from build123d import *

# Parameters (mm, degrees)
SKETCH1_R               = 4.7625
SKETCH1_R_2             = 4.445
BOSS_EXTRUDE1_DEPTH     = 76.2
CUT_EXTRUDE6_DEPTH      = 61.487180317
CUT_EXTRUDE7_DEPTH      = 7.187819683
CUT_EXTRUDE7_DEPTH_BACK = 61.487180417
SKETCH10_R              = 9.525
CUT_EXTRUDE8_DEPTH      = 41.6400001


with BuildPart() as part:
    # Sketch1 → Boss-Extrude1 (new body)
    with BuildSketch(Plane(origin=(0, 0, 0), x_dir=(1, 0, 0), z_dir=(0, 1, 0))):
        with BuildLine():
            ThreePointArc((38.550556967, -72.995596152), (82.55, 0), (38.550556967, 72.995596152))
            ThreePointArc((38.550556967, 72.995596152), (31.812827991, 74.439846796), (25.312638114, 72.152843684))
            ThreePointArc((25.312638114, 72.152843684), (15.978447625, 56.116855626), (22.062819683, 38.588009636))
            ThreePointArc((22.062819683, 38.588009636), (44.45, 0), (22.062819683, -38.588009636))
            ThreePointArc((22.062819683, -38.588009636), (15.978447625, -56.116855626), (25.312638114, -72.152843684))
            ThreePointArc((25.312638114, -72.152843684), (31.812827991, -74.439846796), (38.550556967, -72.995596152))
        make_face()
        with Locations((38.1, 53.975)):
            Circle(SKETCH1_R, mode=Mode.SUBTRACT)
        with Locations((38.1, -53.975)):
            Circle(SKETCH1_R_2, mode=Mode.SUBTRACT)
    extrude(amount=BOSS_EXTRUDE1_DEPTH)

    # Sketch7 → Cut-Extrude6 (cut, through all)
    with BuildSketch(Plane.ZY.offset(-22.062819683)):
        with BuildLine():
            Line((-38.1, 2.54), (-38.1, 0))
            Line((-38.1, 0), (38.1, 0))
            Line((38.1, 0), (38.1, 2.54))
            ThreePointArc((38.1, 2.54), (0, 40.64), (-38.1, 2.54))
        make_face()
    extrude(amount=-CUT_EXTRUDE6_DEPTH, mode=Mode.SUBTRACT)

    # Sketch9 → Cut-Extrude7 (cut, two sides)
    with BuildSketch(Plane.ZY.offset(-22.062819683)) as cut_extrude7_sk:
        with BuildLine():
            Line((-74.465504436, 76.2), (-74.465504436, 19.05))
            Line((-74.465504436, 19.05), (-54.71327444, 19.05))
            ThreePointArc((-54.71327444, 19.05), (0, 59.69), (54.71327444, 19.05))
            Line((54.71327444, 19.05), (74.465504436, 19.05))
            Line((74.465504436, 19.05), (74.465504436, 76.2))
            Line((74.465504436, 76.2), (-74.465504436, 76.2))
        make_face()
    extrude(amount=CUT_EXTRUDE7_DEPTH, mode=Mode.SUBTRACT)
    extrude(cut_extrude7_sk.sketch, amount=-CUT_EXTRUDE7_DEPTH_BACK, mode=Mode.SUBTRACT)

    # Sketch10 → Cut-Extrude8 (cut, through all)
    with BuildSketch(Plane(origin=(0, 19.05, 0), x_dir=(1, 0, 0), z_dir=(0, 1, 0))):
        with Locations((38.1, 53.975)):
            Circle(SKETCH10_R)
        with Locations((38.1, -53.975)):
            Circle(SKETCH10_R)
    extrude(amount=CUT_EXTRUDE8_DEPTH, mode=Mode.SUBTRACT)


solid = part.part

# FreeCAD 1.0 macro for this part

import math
import FreeCAD as App
import Part
import Sketcher
Q = App.Units.Quantity

doc = App.newDocument("Part")
body = doc.addObject("PartDesign::Body", "Body")

# Sketch on XZ plane
sketch1 = body.newObject("Sketcher::SketchObject", "Sketch")
sketch1.AttachmentSupport = (doc.getObject("XZ_Plane"), [""])
sketch1.MapMode = "FlatFace"
sketch1.addGeometry([
    Part.ArcOfCircle(Part.Circle(App.Vector(0, 0, 0), App.Vector(0, 0, 1), 82.6), math.radians(-62), math.radians(62)),  # 0
    Part.ArcOfCircle(Part.Circle(App.Vector(32.6, -61.8, 0), App.Vector(0, 0, 1), 12.7), math.radians(-125), math.radians(-62)),  # 1
    Part.ArcOfCircle(Part.Circle(App.Vector(38.1, -54, 0), App.Vector(0, 0, 1), 22.2), math.radians(136), math.radians(235)),  # 2
    Part.ArcOfCircle(Part.Circle(App.Vector(0, 0, 0), App.Vector(0, 0, 1), 44.5), math.radians(-60), math.radians(60)),  # 3
    Part.ArcOfCircle(Part.Circle(App.Vector(38.1, 54, 0), App.Vector(0, 0, 1), 22.2), math.radians(125), math.radians(224)),  # 4
    Part.ArcOfCircle(Part.Circle(App.Vector(32.6, 61.8, 0), App.Vector(0, 0, 1), 12.7), math.radians(62), math.radians(125)),  # 5
    Part.Circle(App.Vector(38.1, 54, 0), App.Vector(0, 0, 1), 4.4),  # 6
    Part.Circle(App.Vector(38.1, -54, 0), App.Vector(0, 0, 1), 4.8),  # 7
], False)
sketch1.addConstraint([
    Sketcher.Constraint("Tangent", 0, 1, 1, 2),
    Sketcher.Constraint("Tangent", 1, 1, 2, 2),
    Sketcher.Constraint("Coincident", 2, 1, 3, 1),
    Sketcher.Constraint("Coincident", 3, 2, 4, 2),
    Sketcher.Constraint("Tangent", 4, 1, 5, 2),
    Sketcher.Constraint("Tangent", 5, 1, 0, 2),
    Sketcher.Constraint("Coincident", 0, 3, -1, 1),
    Sketcher.Constraint("Coincident", 3, 3, -1, 1),
    Sketcher.Constraint("Coincident", 6, 3, 4, 3),
    Sketcher.Constraint("Coincident", 7, 3, 2, 3),
    Sketcher.Constraint("Equal", 2, 4),
    Sketcher.Constraint("Equal", 1, 5),
    Sketcher.Constraint("Symmetric", 2, 3, 4, 3, -1),
    Sketcher.Constraint("Radius", 1, Q("0.5 in")),
    Sketcher.Constraint("Diameter", 6, Q("0.35 in")),
    Sketcher.Constraint("Radius", 0, Q("3.25 in")),
    Sketcher.Constraint("Radius", 3, Q("1.75 in")),
    Sketcher.Constraint("Diameter", 7, Q("0.375 in")),
    Sketcher.Constraint("Radius", 2, Q("0.875 in")),
    Sketcher.Constraint("DistanceX", -1, 1, 2, 3, Q("1.5 in")),
    Sketcher.Constraint("DistanceY", 2, 3, 4, 3, Q("4.25 in")),
])
pad1 = body.newObject("PartDesign::Pad", "Pad")
pad1.Profile = sketch1
pad1.Length = Q("3 in")
pad1.Reversed = True

# Sketch on YZ plane
sketch2 = body.newObject("Sketcher::SketchObject", "Sketch001")
sketch2.AttachmentSupport = (doc.getObject("YZ_Plane"), [""])
sketch2.MapMode = "FlatFace"
sketch2.AttachmentOffset = App.Placement(App.Vector(0, 0, 22.06282), App.Rotation())
sketch2.addGeometry([
    Part.LineSegment(App.Vector(2.5, -38.1, 0), App.Vector(0, -38.1, 0)),
    Part.LineSegment(App.Vector(0, -38.1, 0), App.Vector(0, 38.1, 0)),
    Part.LineSegment(App.Vector(0, 38.1, 0), App.Vector(2.5, 38.1, 0)),
    Part.ArcOfCircle(Part.Circle(App.Vector(2.5, 0, 0), App.Vector(0, 0, 1), 38.1), math.radians(-90), math.radians(90)),
], False)
sketch2.addConstraint([
    Sketcher.Constraint("Coincident", 0, 2, 1, 1),
    Sketcher.Constraint("Coincident", 1, 2, 2, 1),
    Sketcher.Constraint("Tangent", 2, 2, 3, 2),
    Sketcher.Constraint("Tangent", 3, 1, 0, 1),
    Sketcher.Constraint("Horizontal", 0),
    Sketcher.Constraint("Vertical", 1),
    Sketcher.Constraint("Horizontal", 2),
    Sketcher.Constraint("Symmetric", 0, 2, 1, 2, -1, 1),
    Sketcher.Constraint("Radius", 3, Q("1.5 in")),
    Sketcher.Constraint("DistanceX", 0, 2, 0, 1, Q("0.1 in")),
])
pocket1 = body.newObject("PartDesign::Pocket", "Pocket")
pocket1.Profile = sketch2
pocket1.Type = "ThroughAll"
pocket1.Reversed = True

# Sketch on YZ plane
sketch3 = body.newObject("Sketcher::SketchObject", "Sketch002")
sketch3.AttachmentSupport = (doc.getObject("YZ_Plane"), [""])
sketch3.MapMode = "FlatFace"
sketch3.AttachmentOffset = App.Placement(App.Vector(0, 0, 22.06282), App.Rotation())
sketch3.addGeometry([
    Part.LineSegment(App.Vector(76, -74, 0), App.Vector(19, -74, 0)),  # 0
    Part.LineSegment(App.Vector(19, -74, 0), App.Vector(19, -55, 0)),  # 1
    Part.ArcOfCircle(Part.Circle(App.Vector(3, 0, 0), App.Vector(0, 0, 1), 57), math.radians(-73), math.radians(73)),  # 2
    Part.LineSegment(App.Vector(19, 55, 0), App.Vector(19, 74, 0)),  # 3
    Part.LineSegment(App.Vector(19, 74, 0), App.Vector(76, 74, 0)),  # 4
    Part.LineSegment(App.Vector(76, 74, 0), App.Vector(76, -74, 0)),  # 5
], False)
sketch3.addConstraint([
    Sketcher.Constraint("Coincident", 0, 2, 1, 1),
    Sketcher.Constraint("Coincident", 1, 2, 2, 1),
    Sketcher.Constraint("Coincident", 2, 2, 3, 1),
    Sketcher.Constraint("Coincident", 3, 2, 4, 1),
    Sketcher.Constraint("Coincident", 4, 2, 5, 1),
    Sketcher.Constraint("Coincident", 5, 2, 0, 1),
    Sketcher.Constraint("Horizontal", 0),
    Sketcher.Constraint("Vertical", 1),
    Sketcher.Constraint("Vertical", 3),
    Sketcher.Constraint("Horizontal", 4),
    Sketcher.Constraint("Vertical", 5),
    Sketcher.Constraint("Symmetric", 1, 2, 2, 2, -1),
    Sketcher.Constraint("Equal", 1, 3),
    Sketcher.Constraint("Radius", 2, Q("2.25 in")),
    Sketcher.Constraint("DistanceX", -1, 1, 4, 2, Q("3 in")),
    Sketcher.Constraint("DistanceX", 0, 2, 0, 1, Q("2.25 in")),
    Sketcher.Constraint("DistanceX", -1, 1, 2, 3, Q("0.1 in")),
    Sketcher.Constraint("DistanceY", 1, 1, 1, 2, Q("19.75223 mm")),
])
pocket2 = body.newObject("PartDesign::Pocket", "Pocket001")
pocket2.Profile = sketch3
pocket2.Type = "ThroughAll"
pocket2.Midplane = True

# Sketch on XZ plane
sketch4 = body.newObject("Sketcher::SketchObject", "Sketch003")
sketch4.AttachmentSupport = (doc.getObject("XZ_Plane"), [""])
sketch4.MapMode = "FlatFace"
sketch4.AttachmentOffset = App.Placement(App.Vector(0, 0, -0.75 * 25.4), App.Rotation())
sketch4.addGeometry([
    Part.Circle(App.Vector(38, -54, 0), App.Vector(0, 0, 1), 10),
    Part.Circle(App.Vector(38, 54, 0), App.Vector(0, 0, 1), 10),
], False)
sketch4.addConstraint([
    Sketcher.Constraint("Equal", 0, 1),
    Sketcher.Constraint("Symmetric", 0, 3, 1, 3, -1),
    Sketcher.Constraint("Diameter", 0, Q("0.75 in")),
    Sketcher.Constraint("DistanceX", -1, 1, 0, 3, Q("1.5 in")),
    Sketcher.Constraint("DistanceY", 0, 3, 1, 3, Q("4.25 in")),
])
pocket3 = body.newObject("PartDesign::Pocket", "Pocket002")
pocket3.Profile = sketch4
pocket3.Type = "ThroughAll"

doc.recompute()
